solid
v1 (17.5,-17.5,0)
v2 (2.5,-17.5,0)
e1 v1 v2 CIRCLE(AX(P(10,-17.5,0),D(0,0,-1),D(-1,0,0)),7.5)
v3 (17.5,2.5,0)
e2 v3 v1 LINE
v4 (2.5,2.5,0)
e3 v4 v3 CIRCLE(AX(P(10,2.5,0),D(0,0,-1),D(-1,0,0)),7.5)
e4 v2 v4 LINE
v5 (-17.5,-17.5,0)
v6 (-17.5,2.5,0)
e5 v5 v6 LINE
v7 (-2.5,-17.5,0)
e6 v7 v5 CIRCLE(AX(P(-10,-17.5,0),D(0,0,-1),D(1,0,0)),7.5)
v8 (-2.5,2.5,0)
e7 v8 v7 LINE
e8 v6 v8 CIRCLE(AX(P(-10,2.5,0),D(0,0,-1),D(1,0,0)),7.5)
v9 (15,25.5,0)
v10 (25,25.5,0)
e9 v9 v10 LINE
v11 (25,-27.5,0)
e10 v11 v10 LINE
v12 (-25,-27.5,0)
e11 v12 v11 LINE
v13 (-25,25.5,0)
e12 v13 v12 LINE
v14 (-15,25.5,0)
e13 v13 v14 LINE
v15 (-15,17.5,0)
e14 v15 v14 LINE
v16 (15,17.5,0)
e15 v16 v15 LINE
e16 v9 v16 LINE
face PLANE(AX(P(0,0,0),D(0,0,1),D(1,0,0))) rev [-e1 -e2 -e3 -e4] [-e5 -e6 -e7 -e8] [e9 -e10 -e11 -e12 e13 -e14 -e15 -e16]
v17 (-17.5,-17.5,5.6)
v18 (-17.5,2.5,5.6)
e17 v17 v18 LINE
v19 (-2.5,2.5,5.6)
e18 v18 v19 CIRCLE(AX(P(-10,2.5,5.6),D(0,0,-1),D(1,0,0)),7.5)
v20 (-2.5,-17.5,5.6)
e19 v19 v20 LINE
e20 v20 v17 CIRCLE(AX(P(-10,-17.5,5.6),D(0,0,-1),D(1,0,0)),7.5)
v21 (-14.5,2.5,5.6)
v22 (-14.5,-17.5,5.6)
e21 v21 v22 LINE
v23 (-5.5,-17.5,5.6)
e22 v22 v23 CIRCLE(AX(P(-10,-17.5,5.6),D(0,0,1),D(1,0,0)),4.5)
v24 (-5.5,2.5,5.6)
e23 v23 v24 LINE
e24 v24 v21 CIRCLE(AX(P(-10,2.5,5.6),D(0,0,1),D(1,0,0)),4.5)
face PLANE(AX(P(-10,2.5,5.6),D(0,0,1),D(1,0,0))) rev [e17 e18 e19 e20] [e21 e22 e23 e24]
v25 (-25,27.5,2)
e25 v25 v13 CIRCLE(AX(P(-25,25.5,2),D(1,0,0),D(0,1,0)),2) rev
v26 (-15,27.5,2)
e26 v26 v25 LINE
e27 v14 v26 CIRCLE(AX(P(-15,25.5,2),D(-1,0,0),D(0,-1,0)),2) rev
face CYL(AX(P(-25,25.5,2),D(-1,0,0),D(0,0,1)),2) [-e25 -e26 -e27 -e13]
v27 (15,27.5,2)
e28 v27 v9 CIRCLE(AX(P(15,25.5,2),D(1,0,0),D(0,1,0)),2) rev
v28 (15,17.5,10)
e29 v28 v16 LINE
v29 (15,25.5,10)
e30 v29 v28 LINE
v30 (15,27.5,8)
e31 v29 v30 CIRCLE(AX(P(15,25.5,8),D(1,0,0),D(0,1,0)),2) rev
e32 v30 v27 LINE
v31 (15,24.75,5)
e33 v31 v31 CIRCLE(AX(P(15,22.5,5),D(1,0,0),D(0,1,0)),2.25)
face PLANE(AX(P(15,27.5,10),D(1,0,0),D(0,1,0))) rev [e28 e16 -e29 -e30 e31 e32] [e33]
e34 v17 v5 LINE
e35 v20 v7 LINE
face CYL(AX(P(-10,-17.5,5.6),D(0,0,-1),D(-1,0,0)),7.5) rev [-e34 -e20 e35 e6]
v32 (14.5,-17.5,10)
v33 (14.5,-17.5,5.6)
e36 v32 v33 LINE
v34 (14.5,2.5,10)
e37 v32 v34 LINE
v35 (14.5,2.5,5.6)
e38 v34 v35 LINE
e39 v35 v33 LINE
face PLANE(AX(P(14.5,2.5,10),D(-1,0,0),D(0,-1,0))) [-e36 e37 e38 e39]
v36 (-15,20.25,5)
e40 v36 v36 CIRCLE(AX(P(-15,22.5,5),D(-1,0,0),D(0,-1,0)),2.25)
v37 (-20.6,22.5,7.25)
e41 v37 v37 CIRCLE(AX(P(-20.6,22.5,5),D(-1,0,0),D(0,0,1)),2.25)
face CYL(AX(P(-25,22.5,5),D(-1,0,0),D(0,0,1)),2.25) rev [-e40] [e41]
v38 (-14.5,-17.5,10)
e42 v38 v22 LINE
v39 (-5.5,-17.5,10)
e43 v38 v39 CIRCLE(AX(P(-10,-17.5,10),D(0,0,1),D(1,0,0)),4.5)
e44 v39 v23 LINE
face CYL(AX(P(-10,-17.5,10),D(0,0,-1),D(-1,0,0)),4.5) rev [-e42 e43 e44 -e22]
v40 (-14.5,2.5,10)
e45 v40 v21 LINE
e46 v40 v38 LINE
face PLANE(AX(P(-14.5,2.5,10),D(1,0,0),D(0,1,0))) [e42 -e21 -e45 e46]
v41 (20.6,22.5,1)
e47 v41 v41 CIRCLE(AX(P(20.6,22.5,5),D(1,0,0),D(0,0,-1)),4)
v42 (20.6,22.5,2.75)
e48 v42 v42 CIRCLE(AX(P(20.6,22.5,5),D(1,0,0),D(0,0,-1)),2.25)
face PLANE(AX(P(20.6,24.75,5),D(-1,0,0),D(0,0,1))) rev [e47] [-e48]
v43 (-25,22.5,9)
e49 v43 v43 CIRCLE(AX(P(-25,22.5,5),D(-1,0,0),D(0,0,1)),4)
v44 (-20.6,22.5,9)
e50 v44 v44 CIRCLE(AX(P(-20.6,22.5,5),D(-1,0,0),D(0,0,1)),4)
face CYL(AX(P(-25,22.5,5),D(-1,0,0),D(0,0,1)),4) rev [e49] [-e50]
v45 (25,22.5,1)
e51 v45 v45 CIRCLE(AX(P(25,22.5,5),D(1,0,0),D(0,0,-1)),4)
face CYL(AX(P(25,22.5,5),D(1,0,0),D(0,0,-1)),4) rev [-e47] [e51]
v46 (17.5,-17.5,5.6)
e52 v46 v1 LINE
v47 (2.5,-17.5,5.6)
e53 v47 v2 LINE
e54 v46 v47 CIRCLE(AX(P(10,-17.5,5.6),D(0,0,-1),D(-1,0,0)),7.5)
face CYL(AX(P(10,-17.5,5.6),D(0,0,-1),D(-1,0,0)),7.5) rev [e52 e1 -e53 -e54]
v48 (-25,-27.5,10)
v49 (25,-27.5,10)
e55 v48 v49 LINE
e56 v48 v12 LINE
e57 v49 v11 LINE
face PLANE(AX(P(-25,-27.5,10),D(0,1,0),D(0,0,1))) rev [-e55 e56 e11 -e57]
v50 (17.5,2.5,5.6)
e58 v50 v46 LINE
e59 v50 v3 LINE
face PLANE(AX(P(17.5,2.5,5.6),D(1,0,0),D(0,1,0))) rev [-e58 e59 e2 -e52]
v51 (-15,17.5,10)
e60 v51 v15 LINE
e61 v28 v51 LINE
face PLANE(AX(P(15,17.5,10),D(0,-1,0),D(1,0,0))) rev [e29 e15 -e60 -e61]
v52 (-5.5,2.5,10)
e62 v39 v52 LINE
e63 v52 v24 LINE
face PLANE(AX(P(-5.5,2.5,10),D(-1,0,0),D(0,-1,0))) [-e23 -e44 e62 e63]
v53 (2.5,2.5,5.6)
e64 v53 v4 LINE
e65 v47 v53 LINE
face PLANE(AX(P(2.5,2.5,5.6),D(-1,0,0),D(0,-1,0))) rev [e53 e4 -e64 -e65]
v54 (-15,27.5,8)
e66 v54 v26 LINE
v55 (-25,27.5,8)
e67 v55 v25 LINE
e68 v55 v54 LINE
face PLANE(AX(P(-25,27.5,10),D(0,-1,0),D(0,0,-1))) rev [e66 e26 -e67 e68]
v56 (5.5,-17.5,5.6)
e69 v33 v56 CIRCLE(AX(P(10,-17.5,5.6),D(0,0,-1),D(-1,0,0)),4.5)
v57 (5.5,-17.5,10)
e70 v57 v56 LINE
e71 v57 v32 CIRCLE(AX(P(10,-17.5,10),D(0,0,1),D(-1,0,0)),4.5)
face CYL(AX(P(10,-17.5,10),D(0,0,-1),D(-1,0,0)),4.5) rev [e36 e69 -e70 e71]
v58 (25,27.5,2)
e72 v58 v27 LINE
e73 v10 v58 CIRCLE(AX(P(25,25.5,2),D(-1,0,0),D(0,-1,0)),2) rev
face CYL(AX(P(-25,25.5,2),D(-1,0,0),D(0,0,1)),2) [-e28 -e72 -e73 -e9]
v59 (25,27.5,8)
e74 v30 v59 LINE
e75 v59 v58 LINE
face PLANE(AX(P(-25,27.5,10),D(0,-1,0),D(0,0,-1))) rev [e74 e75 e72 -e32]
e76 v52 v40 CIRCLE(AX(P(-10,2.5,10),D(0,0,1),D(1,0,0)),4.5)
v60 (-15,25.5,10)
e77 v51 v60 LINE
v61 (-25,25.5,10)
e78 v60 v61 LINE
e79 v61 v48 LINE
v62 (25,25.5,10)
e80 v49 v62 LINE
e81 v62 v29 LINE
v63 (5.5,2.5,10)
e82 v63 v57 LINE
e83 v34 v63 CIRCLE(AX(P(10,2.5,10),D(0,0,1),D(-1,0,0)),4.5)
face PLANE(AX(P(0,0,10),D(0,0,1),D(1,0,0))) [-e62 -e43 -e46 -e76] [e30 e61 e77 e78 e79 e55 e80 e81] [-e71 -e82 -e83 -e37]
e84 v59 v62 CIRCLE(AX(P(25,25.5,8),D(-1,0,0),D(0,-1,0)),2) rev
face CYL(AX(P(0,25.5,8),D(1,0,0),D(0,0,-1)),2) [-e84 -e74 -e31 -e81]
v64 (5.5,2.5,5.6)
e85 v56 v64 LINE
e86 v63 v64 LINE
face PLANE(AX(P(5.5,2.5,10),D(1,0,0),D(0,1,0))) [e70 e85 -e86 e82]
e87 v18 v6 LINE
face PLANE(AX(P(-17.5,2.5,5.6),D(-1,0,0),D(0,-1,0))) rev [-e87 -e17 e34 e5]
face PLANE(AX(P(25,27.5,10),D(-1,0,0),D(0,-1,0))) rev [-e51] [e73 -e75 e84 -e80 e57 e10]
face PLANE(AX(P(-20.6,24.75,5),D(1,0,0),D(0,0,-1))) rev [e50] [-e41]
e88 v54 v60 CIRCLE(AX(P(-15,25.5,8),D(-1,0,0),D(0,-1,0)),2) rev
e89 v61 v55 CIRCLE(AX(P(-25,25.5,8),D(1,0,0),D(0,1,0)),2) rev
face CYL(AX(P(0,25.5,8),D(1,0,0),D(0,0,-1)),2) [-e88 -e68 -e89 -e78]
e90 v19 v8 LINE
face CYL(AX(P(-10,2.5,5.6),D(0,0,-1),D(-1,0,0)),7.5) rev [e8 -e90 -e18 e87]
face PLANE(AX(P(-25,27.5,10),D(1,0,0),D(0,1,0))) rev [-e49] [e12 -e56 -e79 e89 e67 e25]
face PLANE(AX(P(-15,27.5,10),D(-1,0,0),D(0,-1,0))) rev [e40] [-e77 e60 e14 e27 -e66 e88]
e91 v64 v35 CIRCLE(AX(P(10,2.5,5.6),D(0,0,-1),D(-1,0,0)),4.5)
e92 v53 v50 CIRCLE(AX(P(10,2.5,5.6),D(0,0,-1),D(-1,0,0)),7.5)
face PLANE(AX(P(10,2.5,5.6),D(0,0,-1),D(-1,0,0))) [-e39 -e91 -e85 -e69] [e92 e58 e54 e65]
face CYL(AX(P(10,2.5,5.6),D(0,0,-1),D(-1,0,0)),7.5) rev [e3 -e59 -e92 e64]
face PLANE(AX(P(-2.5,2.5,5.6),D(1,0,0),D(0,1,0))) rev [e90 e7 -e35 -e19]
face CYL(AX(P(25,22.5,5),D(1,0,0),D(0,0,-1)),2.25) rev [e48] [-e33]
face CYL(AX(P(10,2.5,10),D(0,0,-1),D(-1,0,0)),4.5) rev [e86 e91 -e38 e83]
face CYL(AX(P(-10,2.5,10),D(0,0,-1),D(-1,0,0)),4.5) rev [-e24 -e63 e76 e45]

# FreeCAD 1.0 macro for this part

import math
import FreeCAD as App
import Part
import Sketcher
from FreeCAD import Vector
Q = App.Units.Quantity


def edges_at(feature, points):
    """Names of the edges that pass closest to the given points."""
    edges = feature.Shape.Edges
    near = lambda p: min(range(len(edges)), key=lambda i: edges[i].distToShape(Part.Vertex(*p))[0])
    return sorted({f"Edge{near(p) + 1}" for p in points})

doc = App.newDocument("Part")
body = doc.addObject("PartDesign::Body", "Body")

# Sketch on XY plane
sketch1 = doc.addObject("Sketcher::SketchObject", "Sketch")
body.addObject(sketch1)
sketch1.AttachmentSupport = (doc.XY_Plane, [""])
sketch1.MapMode = "FlatFace"
sketch1.addGeometry(Part.LineSegment(Vector(-25, 27.5, 0), Vector(-25, -27.5, 0)), False)
sketch1.addGeometry(Part.LineSegment(Vector(-25, -27.5, 0), Vector(25, -27.5, 0)), False)
sketch1.addGeometry(Part.LineSegment(Vector(25, -27.5, 0), Vector(25, 27.5, 0)), False)
sketch1.addGeometry(Part.LineSegment(Vector(25, 27.5, 0), Vector(-25, 27.5, 0)), False)
sketch1.addGeometry(Part.ArcOfCircle(Part.Circle(Vector(-10, 2.5, 0), Vector(0, 0, 1), 4.5), math.radians(0), math.radians(180)), False)
sketch1.addGeometry(Part.LineSegment(Vector(-5.5, 2.5, 0), Vector(-5.5, -17.5, 0)), False)
sketch1.addGeometry(Part.ArcOfCircle(Part.Circle(Vector(-10, -17.5, 0), Vector(0, 0, 1), 4.5), math.radians(180), math.radians(360)), False)
sketch1.addGeometry(Part.LineSegment(Vector(-14.5, -17.5, 0), Vector(-14.5, 2.5, 0)), False)
sketch1.addGeometry(Part.LineSegment(Vector(5.5, -17.5, 0), Vector(5.5, 2.5, 0)), False)
sketch1.addGeometry(Part.ArcOfCircle(Part.Circle(Vector(10, 2.5, 0), Vector(0, 0, 1), 4.5), math.radians(0), math.radians(180)), False)
sketch1.addGeometry(Part.LineSegment(Vector(14.5, 2.5, 0), Vector(14.5, -17.5, 0)), False)
sketch1.addGeometry(Part.ArcOfCircle(Part.Circle(Vector(10, -17.5, 0), Vector(0, 0, 1), 4.5), math.radians(180), math.radians(360)), False)
sketch1.addConstraint(Sketcher.Constraint("Coincident", 0, 2, 1, 1))
sketch1.addConstraint(Sketcher.Constraint("Coincident", 1, 2, 2, 1))
sketch1.addConstraint(Sketcher.Constraint("Coincident", 2, 2, 3, 1))
sketch1.addConstraint(Sketcher.Constraint("Coincident", 3, 2, 0, 1))
sketch1.addConstraint(Sketcher.Constraint("Tangent", 4, 1, 5, 1))
sketch1.addConstraint(Sketcher.Constraint("Tangent", 5, 2, 6, 2))
sketch1.addConstraint(Sketcher.Constraint("Tangent", 6, 1, 7, 1))
sketch1.addConstraint(Sketcher.Constraint("Tangent", 7, 2, 4, 2))
sketch1.addConstraint(Sketcher.Constraint("Tangent", 8, 2, 9, 2))
sketch1.addConstraint(Sketcher.Constraint("Tangent", 9, 1, 10, 1))
sketch1.addConstraint(Sketcher.Constraint("Tangent", 10, 2, 11, 2))
sketch1.addConstraint(Sketcher.Constraint("Tangent", 11, 1, 8, 1))
sketch1.addConstraint(Sketcher.Constraint("Vertical", 0))
sketch1.addConstraint(Sketcher.Constraint("Horizontal", 1))
sketch1.addConstraint(Sketcher.Constraint("Vertical", 2))
sketch1.addConstraint(Sketcher.Constraint("Horizontal", 3))
sketch1.addConstraint(Sketcher.Constraint("Vertical", 5))
sketch1.addConstraint(Sketcher.Constraint("Vertical", 7))
sketch1.addConstraint(Sketcher.Constraint("Vertical", 8))
sketch1.addConstraint(Sketcher.Constraint("Vertical", 10))
sketch1.addConstraint(Sketcher.Constraint("Equal", 6, 9))
sketch1.addConstraint(Sketcher.Constraint("Symmetric", 0, 2, 2, 2, -1, 1))
sketch1.addConstraint(Sketcher.Constraint("Symmetric", 4, 3, 9, 3, -2))
sketch1.addConstraint(Sketcher.Constraint("Horizontal", 6, 3, 11, 3))
sketch1.addConstraint(Sketcher.Constraint("Radius", 4, 4.5))
sketch1.addConstraint(Sketcher.Constraint("DistanceX", 1, 1, 1, 2, 50.0))
sketch1.addConstraint(Sketcher.Constraint("DistanceY", 0, 2, 0, 1, 55.0))
sketch1.addConstraint(Sketcher.Constraint("DistanceY", 5, 2, 5, 1, 20.0))
sketch1.addConstraint(Sketcher.Constraint("DistanceX", 4, 3, -1, 1, 10.0))
sketch1.addConstraint(Sketcher.Constraint("DistanceY", 0, 2, 6, 3, 10.0))
pad1 = doc.addObject("PartDesign::Pad", "Pad")
body.addObject(pad1)
pad1.Profile = sketch1
pad1.Length = 10

# Sketch on XY plane
sketch2 = doc.addObject("Sketcher::SketchObject", "Sketch001")
body.addObject(sketch2)
sketch2.AttachmentSupport = (doc.XY_Plane, [""])
sketch2.MapMode = "FlatFace"
sketch2.addGeometry(Part.LineSegment(Vector(15, 27.5, 0), Vector(15, 17.5, 0)), False)
sketch2.addGeometry(Part.LineSegment(Vector(15, 17.5, 0), Vector(-15, 17.5, 0)), False)
sketch2.addGeometry(Part.LineSegment(Vector(-15, 17.5, 0), Vector(-15, 27.5, 0)), False)
sketch2.addGeometry(Part.LineSegment(Vector(-15, 27.5, 0), Vector(15, 27.5, 0)), False)
sketch2.addConstraint(Sketcher.Constraint("Coincident", 0, 2, 1, 1))
sketch2.addConstraint(Sketcher.Constraint("Coincident", 1, 2, 2, 1))
sketch2.addConstraint(Sketcher.Constraint("Coincident", 2, 2, 3, 1))
sketch2.addConstraint(Sketcher.Constraint("Coincident", 3, 2, 0, 1))
sketch2.addConstraint(Sketcher.Constraint("Vertical", 0))
sketch2.addConstraint(Sketcher.Constraint("Horizontal", 1))
sketch2.addConstraint(Sketcher.Constraint("Vertical", 2))
sketch2.addConstraint(Sketcher.Constraint("Horizontal", 3))
sketch2.addConstraint(Sketcher.Constraint("DistanceX", 1, 2, 1, 1, 30.0))
sketch2.addConstraint(Sketcher.Constraint("DistanceY", 0, 2, 0, 1, 10.0))
sketch2.addConstraint(Sketcher.Constraint("DistanceX", -1, 1, 0, 2, 15.0))
sketch2.addConstraint(Sketcher.Constraint("DistanceY", -1, 1, 0, 2, 17.5))
pocket1 = doc.addObject("PartDesign::Pocket", "Pocket")
body.addObject(pocket1)
pocket1.Profile = sketch2
pocket1.Length = 10
pocket1.Reversed = True

# Sketch on XZ plane
sketch3 = doc.addObject("Sketcher::SketchObject", "Sketch002")
body.addObject(sketch3)
sketch3.AttachmentSupport = (doc.XZ_Plane, [""])
sketch3.MapMode = "FlatFace"
sketch3.AttachmentOffset = App.Placement(Vector(0, 0, -22.5), App.Rotation())
sketch3.addGeometry(Part.LineSegment(Vector(9.648064, 5, 0), Vector(25, 5, 0)), False)
sketch3.addGeometry(Part.LineSegment(Vector(25, 5, 0), Vector(25, 1, 0)), False)
sketch3.addGeometry(Part.LineSegment(Vector(25, 1, 0), Vector(20.6, 1, 0)), False)
sketch3.addGeometry(Part.LineSegment(Vector(20.6, 1, 0), Vector(20.6, 2.75, 0)), False)
sketch3.addGeometry(Part.LineSegment(Vector(20.6, 2.75, 0), Vector(11, 2.75, 0)), False)
sketch3.addGeometry(Part.LineSegment(Vector(11, 2.75, 0), Vector(9.648064, 5, 0)), False)
sketch3.addGeometry(Part.LineSegment(Vector(25, 5, 0), Vector(9.648064, 5, 0)), True)  # axis
sketch3.addConstraint(Sketcher.Constraint("Coincident", 0, 2, 1, 1))
sketch3.addConstraint(Sketcher.Constraint("Coincident", 1, 2, 2, 1))
sketch3.addConstraint(Sketcher.Constraint("Coincident", 2, 2, 3, 1))
sketch3.addConstraint(Sketcher.Constraint("Coincident", 3, 2, 4, 1))
sketch3.addConstraint(Sketcher.Constraint("Coincident", 4, 2, 5, 1))
sketch3.addConstraint(Sketcher.Constraint("Coincident", 5, 2, 0, 1))
sketch3.addConstraint(Sketcher.Constraint("Horizontal", 0))
sketch3.addConstraint(Sketcher.Constraint("Vertical", 1))
sketch3.addConstraint(Sketcher.Constraint("Horizontal", 2))
sketch3.addConstraint(Sketcher.Constraint("Vertical", 3))
sketch3.addConstraint(Sketcher.Constraint("Horizontal", 4))
sketch3.addConstraint(Sketcher.Constraint("Horizontal", 6))
sketch3.addConstraint(Sketcher.Constraint("Coincident", 6, 1, 0, 2))
sketch3.addConstraint(Sketcher.Constraint("Equal", 0, 6))
sketch3.addConstraint(Sketcher.Constraint("DistanceY", 1, 2, 1, 1, 4.0))
sketch3.addConstraint(Sketcher.Constraint("Angle", 5, Q("121 deg")))
sketch3.addConstraint(Sketcher.Constraint("DistanceX", 2, 2, 2, 1, 4.4))
sketch3.addConstraint(Sketcher.Constraint("DistanceX", 4, 2, 4, 1, 9.6))
sketch3.addConstraint(Sketcher.Constraint("DistanceX", -1, 1, 0, 2, 25.0))
sketch3.addConstraint(Sketcher.Constraint("DistanceY", -1, 1, 0, 2, 5.0))
sketch3.addConstraint(Sketcher.Constraint("DistanceY", 3, 1, 3, 2, 1.75))
groove = doc.addObject("PartDesign::Groove", "Groove")
body.addObject(groove)
groove.Profile = sketch3
groove.ReferenceAxis = (sketch3, ["Axis0"])
groove.Angle = 360
doc.recompute()

mirrored = doc.addObject("PartDesign::Mirrored", "Mirrored")
body.addObject(mirrored)
mirrored.Originals = [groove]
mirrored.MirrorPlane = (doc.YZ_Plane, [""])
body.Tip = mirrored

# Sketch on XY plane
sketch4 = doc.addObject("Sketcher::SketchObject", "Sketch003")
body.addObject(sketch4)
sketch4.AttachmentSupport = (doc.XY_Plane, [""])
sketch4.MapMode = "FlatFace"
sketch4.addGeometry(Part.LineSegment(Vector(2.5, -17.5, 0), Vector(2.5, 2.5, 0)), False)
sketch4.addGeometry(Part.ArcOfCircle(Part.Circle(Vector(10, 2.5, 0), Vector(0, 0, 1), 7.5), math.radians(0), math.radians(180)), False)
sketch4.addGeometry(Part.LineSegment(Vector(17.5, 2.5, 0), Vector(17.5, -17.5, 0)), False)
sketch4.addGeometry(Part.ArcOfCircle(Part.Circle(Vector(10, -17.5, 0), Vector(0, 0, 1), 7.5), math.radians(180), math.radians(360)), False)
sketch4.addGeometry(Part.LineSegment(Vector(-2.5, 2.5, 0), Vector(-2.5, -17.5, 0)), False)
sketch4.addGeometry(Part.ArcOfCircle(Part.Circle(Vector(-10, -17.5, 0), Vector(0, 0, 1), 7.5), math.radians(180), math.radians(360)), False)
sketch4.addGeometry(Part.LineSegment(Vector(-17.5, -17.5, 0), Vector(-17.5, 2.5, 0)), False)
sketch4.addGeometry(Part.ArcOfCircle(Part.Circle(Vector(-10, 2.5, 0), Vector(0, 0, 1), 7.5), math.radians(0), math.radians(180)), False)
sketch4.addConstraint(Sketcher.Constraint("Tangent", 0, 2, 1, 2))
sketch4.addConstraint(Sketcher.Constraint("Tangent", 1, 1, 2, 1))
sketch4.addConstraint(Sketcher.Constraint("Tangent", 2, 2, 3, 2))
sketch4.addConstraint(Sketcher.Constraint("Tangent", 3, 1, 0, 1))
sketch4.addConstraint(Sketcher.Constraint("Tangent", 4, 2, 5, 2))
sketch4.addConstraint(Sketcher.Constraint("Tangent", 5, 1, 6, 1))
sketch4.addConstraint(Sketcher.Constraint("Tangent", 6, 2, 7, 2))
sketch4.addConstraint(Sketcher.Constraint("Tangent", 7, 1, 4, 1))
sketch4.addConstraint(Sketcher.Constraint("Vertical", 0))
sketch4.addConstraint(Sketcher.Constraint("Vertical", 2))
sketch4.addConstraint(Sketcher.Constraint("Vertical", 4))
sketch4.addConstraint(Sketcher.Constraint("Vertical", 6))
sketch4.addConstraint(Sketcher.Constraint("Equal", 3, 5))
sketch4.addConstraint(Sketcher.Constraint("Symmetric", 3, 3, 5, 3, -2))
sketch4.addConstraint(Sketcher.Constraint("Horizontal", 1, 3, 7, 3))
sketch4.addConstraint(Sketcher.Constraint("Radius", 1, 7.5))
sketch4.addConstraint(Sketcher.Constraint("DistanceY", 0, 1, 0, 2, 20.0))
sketch4.addConstraint(Sketcher.Constraint("DistanceX", -1, 1, 1, 3, 10.0))
sketch4.addConstraint(Sketcher.Constraint("DistanceY", -1, 1, 1, 3, 2.5))
pocket2 = doc.addObject("PartDesign::Pocket", "Pocket001")
body.addObject(pocket2)
pocket2.Profile = sketch4
pocket2.Length = 5.6
pocket2.Reversed = True
doc.recompute()

fillet = doc.addObject("PartDesign::Fillet", "Fillet")
body.addObject(fillet)
fillet.Base = (pocket2, edges_at(pocket2, [
    (-20, 27.5, 0),
    (-20, 27.5, 10),
    (20, 27.5, 0),
    (20, 27.5, 10),
]))
fillet.Radius = 2

doc.recompute()
